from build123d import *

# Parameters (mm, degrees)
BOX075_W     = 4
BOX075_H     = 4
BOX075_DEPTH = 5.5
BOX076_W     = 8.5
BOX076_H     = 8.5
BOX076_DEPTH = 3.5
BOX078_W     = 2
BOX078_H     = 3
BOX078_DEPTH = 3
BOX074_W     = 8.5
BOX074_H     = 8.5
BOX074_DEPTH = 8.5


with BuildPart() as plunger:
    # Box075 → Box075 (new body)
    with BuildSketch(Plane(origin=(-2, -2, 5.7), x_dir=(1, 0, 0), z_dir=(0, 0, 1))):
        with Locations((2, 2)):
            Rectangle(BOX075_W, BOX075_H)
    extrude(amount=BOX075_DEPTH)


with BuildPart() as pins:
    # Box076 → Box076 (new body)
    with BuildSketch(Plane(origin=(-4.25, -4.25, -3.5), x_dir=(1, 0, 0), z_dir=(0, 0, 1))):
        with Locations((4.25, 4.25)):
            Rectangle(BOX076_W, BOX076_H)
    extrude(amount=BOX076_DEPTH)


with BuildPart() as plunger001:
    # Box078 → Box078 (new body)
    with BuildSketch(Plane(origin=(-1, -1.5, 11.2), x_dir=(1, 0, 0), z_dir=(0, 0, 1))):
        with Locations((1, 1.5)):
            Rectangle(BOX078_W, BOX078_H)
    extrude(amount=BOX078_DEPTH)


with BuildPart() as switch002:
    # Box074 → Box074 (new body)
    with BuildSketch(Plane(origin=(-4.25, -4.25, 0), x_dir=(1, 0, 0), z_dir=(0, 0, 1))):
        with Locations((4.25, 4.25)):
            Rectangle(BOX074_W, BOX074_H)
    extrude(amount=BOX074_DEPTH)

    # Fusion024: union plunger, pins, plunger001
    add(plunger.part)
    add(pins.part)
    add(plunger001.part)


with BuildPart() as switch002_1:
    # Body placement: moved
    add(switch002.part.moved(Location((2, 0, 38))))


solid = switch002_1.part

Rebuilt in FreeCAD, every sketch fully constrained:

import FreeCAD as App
import Part
import Sketcher
from FreeCAD import Vector
Q = App.Units.Quantity


def add_polygon(sketch, points):
    """Adds a closed chain of lines whose ends are joined by coincident constraints."""
    first, n = sketch.GeometryCount, len(points)
    for a, b in zip(points, points[1:] + points[:1]):
        sketch.addGeometry(Part.LineSegment(App.Vector(*a, 0), App.Vector(*b, 0)), False)
    for i in range(n):
        sketch.addConstraint(Sketcher.Constraint("Coincident", first + i, 2, first + (i + 1) % n, 1))

doc = App.newDocument("Part")
params = doc.addObject("Spreadsheet::Sheet", "Params")
for row, (alias, value) in enumerate([
    ("sketch1_width", "4 mm"),
    ("pad1_length", "5.5 mm"),
    ("sketch2_width", "8.5 mm"),
    ("pad2_length", "3.5 mm"),
    ("sketch3_width", "2 mm"),
    ("sketch3_height", "3 mm"),
    ("pad3_length", "3 mm"),
    ("sketch4_width", "8.5 mm"),
    ("pad4_length", "8.5 mm"),
], start=1):
    params.set(f"A{row}", alias)
    params.set(f"B{row}", "=" + value)
    params.setAlias(f"B{row}", alias)

body = doc.addObject("PartDesign::Body", "Body")

# Sketch on XY plane
sketch1 = body.newObject("Sketcher::SketchObject", "Sketch")
sketch1.AttachmentSupport = (doc.getObject("XY_Plane"), [""])
sketch1.MapMode = "FlatFace"
sketch1.AttachmentOffset = App.Placement(Vector(0, 0, 5.7), App.Rotation())
add_polygon(sketch1, [(-2, 2), (-2, -2), (2, -2), (2, 2)])  # lines 0-3
sketch1.addConstraint(Sketcher.Constraint("Vertical", 0))
sketch1.addConstraint(Sketcher.Constraint("Horizontal", 1))
sketch1.addConstraint(Sketcher.Constraint("Vertical", 2))
sketch1.addConstraint(Sketcher.Constraint("Horizontal", 3))
sketch1.addConstraint(Sketcher.Constraint("Symmetric", 0, 2, 2, 2, -1, 1))
sketch1.addConstraint(Sketcher.Constraint("Equal", 3, 0))
sketch1.addConstraint(Sketcher.Constraint("DistanceX", 1, 1, 1, 2, Q("4 mm")))
sketch1.setExpression("Constraints[10]", "Params.sketch1_width")
pad1 = body.newObject("PartDesign::Pad", "Pad")
pad1.Profile = sketch1
pad1.setExpression("Length", "Params.pad1_length")
body2 = doc.addObject("PartDesign::Body", "Body001")

# Sketch on XY plane
sketch2 = body2.newObject("Sketcher::SketchObject", "Sketch001")
sketch2.AttachmentSupport = (doc.getObject("XY_Plane001"), [""])
sketch2.MapMode = "FlatFace"
sketch2.AttachmentOffset = App.Placement(Vector(0, 0, -3.5), App.Rotation())
add_polygon(sketch2, [(-4, 4), (-4, -4), (4, -4), (4, 4)])  # lines 0-3
sketch2.addConstraint(Sketcher.Constraint("Vertical", 0))
sketch2.addConstraint(Sketcher.Constraint("Horizontal", 1))
sketch2.addConstraint(Sketcher.Constraint("Vertical", 2))
sketch2.addConstraint(Sketcher.Constraint("Horizontal", 3))
sketch2.addConstraint(Sketcher.Constraint("Symmetric", 0, 2, 2, 2, -1, 1))
sketch2.addConstraint(Sketcher.Constraint("Equal", 3, 0))
sketch2.addConstraint(Sketcher.Constraint("DistanceX", 1, 1, 1, 2, Q("8.5 mm")))
sketch2.setExpression("Constraints[10]", "Params.sketch2_width")
pad2 = body2.newObject("PartDesign::Pad", "Pad001")
pad2.Profile = sketch2
pad2.setExpression("Length", "Params.pad2_length")
body3 = doc.addObject("PartDesign::Body", "Body002")

# Sketch on XY plane
sketch3 = body3.newObject("Sketcher::SketchObject", "Sketch002")
sketch3.AttachmentSupport = (doc.getObject("XY_Plane002"), [""])
sketch3.MapMode = "FlatFace"
sketch3.AttachmentOffset = App.Placement(Vector(0, 0, 11.2), App.Rotation())
add_polygon(sketch3, [(-1, 1.5), (-1, -1.5), (1, -1.5), (1, 1.5)])  # lines 0-3
sketch3.addConstraint(Sketcher.Constraint("Vertical", 0))
sketch3.addConstraint(Sketcher.Constraint("Horizontal", 1))
sketch3.addConstraint(Sketcher.Constraint("Vertical", 2))
sketch3.addConstraint(Sketcher.Constraint("Horizontal", 3))
sketch3.addConstraint(Sketcher.Constraint("Symmetric", 0, 2, 2, 2, -1, 1))
sketch3.addConstraint(Sketcher.Constraint("DistanceX", 1, 1, 1, 2, Q("2 mm")))
sketch3.addConstraint(Sketcher.Constraint("DistanceY", 0, 2, 0, 1, Q("3 mm")))
sketch3.setExpression("Constraints[9]", "Params.sketch3_width")
sketch3.setExpression("Constraints[10]", "Params.sketch3_height")
pad3 = body3.newObject("PartDesign::Pad", "Pad002")
pad3.Profile = sketch3
pad3.setExpression("Length", "Params.pad3_length")
body4 = doc.addObject("PartDesign::Body", "Body003")

# Sketch on XY plane
sketch4 = body4.newObject("Sketcher::SketchObject", "Sketch003")
sketch4.AttachmentSupport = (doc.getObject("XY_Plane003"), [""])
sketch4.MapMode = "FlatFace"
add_polygon(sketch4, [(-4, 4), (-4, -4), (4, -4), (4, 4)])  # lines 0-3
sketch4.addConstraint(Sketcher.Constraint("Vertical", 0))
sketch4.addConstraint(Sketcher.Constraint("Horizontal", 1))
sketch4.addConstraint(Sketcher.Constraint("Vertical", 2))
sketch4.addConstraint(Sketcher.Constraint("Horizontal", 3))
sketch4.addConstraint(Sketcher.Constraint("Symmetric", 0, 2, 2, 2, -1, 1))
sketch4.addConstraint(Sketcher.Constraint("Equal", 3, 0))
sketch4.addConstraint(Sketcher.Constraint("DistanceX", 1, 1, 1, 2, Q("8.5 mm")))
sketch4.setExpression("Constraints[10]", "Params.sketch4_width")
pad4 = body4.newObject("PartDesign::Pad", "Pad003")
pad4.Profile = sketch4
pad4.setExpression("Length", "Params.pad4_length")
doc.recompute()

boolean = body4.newObject("PartDesign::Boolean", "Boolean")
boolean.Type = "Fuse"
boolean.addObjects([body])
doc.recompute()

boolean2 = body4.newObject("PartDesign::Boolean", "Boolean001")
boolean2.Type = "Fuse"
boolean2.addObjects([body2])
doc.recompute()

boolean3 = body4.newObject("PartDesign::Boolean", "Boolean002")
boolean3.Type = "Fuse"
boolean3.addObjects([body3])
body5 = doc.addObject("PartDesign::Body", "Body004")
doc.recompute()

body4.Placement = App.Placement(Vector(2, 0, 38), App.Rotation(Vector(0, 0, 1), 0))
boolean4 = body5.newObject("PartDesign::Boolean", "Boolean003")
boolean4.Type = "Fuse"
boolean4.addObjects([body4])

doc.recompute()
